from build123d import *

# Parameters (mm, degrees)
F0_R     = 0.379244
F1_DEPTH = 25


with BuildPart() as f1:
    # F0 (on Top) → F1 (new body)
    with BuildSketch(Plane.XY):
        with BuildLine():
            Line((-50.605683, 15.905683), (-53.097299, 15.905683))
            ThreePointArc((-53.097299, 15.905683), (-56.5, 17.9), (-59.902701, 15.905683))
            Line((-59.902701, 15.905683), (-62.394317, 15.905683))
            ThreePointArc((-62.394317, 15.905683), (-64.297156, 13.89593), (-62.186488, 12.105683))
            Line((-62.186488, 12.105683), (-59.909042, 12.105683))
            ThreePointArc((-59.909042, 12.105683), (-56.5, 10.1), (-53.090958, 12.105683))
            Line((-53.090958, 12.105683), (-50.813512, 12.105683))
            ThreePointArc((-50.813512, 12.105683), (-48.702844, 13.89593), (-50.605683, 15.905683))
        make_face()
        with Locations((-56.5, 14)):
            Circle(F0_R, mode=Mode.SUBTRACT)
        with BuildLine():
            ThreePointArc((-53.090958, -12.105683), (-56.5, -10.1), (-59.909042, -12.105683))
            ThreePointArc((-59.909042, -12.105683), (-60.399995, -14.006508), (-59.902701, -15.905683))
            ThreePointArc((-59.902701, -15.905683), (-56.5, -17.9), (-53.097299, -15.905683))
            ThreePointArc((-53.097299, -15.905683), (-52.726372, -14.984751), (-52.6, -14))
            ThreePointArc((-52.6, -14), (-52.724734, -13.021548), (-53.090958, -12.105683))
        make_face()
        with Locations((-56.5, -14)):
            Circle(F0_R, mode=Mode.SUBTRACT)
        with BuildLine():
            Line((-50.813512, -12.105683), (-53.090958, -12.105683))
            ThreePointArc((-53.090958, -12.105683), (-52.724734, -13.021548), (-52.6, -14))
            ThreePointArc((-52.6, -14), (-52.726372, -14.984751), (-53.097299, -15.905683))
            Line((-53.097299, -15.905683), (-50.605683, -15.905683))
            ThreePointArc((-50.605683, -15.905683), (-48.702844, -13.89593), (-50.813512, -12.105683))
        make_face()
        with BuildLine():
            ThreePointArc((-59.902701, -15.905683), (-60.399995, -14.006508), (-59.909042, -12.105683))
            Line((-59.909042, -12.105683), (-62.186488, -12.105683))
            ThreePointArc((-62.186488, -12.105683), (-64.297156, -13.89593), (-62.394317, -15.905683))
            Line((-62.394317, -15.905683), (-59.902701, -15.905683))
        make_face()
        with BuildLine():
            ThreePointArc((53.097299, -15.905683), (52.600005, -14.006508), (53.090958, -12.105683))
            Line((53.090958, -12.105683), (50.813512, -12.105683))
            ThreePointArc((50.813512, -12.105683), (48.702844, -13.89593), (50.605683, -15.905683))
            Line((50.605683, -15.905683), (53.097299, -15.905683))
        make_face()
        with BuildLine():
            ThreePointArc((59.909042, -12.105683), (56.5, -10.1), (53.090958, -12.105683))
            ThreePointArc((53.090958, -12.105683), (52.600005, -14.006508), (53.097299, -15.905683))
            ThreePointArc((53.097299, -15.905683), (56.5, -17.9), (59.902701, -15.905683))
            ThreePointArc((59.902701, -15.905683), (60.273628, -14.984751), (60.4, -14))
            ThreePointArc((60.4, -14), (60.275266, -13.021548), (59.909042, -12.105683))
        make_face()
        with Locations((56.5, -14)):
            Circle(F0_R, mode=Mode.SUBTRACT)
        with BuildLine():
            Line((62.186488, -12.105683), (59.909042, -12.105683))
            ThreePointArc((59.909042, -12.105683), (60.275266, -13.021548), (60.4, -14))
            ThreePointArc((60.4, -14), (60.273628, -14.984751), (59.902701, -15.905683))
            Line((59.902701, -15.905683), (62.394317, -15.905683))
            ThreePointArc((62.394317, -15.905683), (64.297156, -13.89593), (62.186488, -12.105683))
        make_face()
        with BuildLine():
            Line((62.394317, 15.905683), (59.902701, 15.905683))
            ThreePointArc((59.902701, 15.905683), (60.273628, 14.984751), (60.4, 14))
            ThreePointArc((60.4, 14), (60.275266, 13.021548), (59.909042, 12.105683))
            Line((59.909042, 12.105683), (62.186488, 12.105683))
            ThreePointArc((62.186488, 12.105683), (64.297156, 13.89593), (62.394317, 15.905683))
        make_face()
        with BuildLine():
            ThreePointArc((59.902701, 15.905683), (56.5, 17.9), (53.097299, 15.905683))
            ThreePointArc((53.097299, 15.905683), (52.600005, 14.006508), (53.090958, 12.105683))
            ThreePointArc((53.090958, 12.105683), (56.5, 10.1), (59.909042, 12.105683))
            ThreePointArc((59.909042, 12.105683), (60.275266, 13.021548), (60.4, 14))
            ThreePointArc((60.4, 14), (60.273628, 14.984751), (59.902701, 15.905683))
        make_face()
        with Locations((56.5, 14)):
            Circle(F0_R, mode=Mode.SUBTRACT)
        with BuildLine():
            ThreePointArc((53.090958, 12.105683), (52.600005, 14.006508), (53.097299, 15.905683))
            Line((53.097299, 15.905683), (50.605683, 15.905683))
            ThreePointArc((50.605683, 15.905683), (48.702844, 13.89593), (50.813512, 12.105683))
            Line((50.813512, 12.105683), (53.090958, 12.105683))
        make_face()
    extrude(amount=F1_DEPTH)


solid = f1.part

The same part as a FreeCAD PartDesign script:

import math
import FreeCAD as App
import Part
import Sketcher
from FreeCAD import Vector

doc = App.newDocument("Part")
params = doc.addObject("Spreadsheet::Sheet", "Params")
for row, (alias, value) in enumerate([
    ("sketch1_radius", "3.9 mm"),
    ("pad1_length", "25 mm"),
], start=1):
    params.set(f"A{row}", alias)
    params.set(f"B{row}", "=" + value)
    params.setAlias(f"B{row}", alias)

body = doc.addObject("PartDesign::Body", "Body")
body.AllowCompound = True

# Sketch on XY plane
sketch1 = doc.addObject("Sketcher::SketchObject", "Sketch")
body.addObject(sketch1)
sketch1.AttachmentSupport = (doc.XY_Plane, [""])
sketch1.MapMode = "FlatFace"
sketch1.addGeometry([
    Part.LineSegment(Vector(-50.61, 15.91, 0), Vector(-53.1, 15.91, 0)),  # 0
    Part.ArcOfCircle(Part.Circle(Vector(-56.5, 14, 0), Vector(0, 0, 1), 3.9), math.radians(29), math.radians(151)),  # 1
    Part.LineSegment(Vector(-59.9, 15.91, 0), Vector(-62.39, 15.91, 0)),  # 2
    Part.ArcOfCircle(Part.Circle(Vector(-62.39, 14, 0), Vector(0, 0, 1), 1.91), math.radians(90), math.radians(276)),  # 3
    Part.LineSegment(Vector(-62.19, 12.11, 0), Vector(-59.91, 12.11, 0)),  # 4
    Part.ArcOfCircle(Part.Circle(Vector(-56.5, 14, 0), Vector(0, 0, 1), 3.9), math.radians(-151), math.radians(-29)),  # 5
    Part.LineSegment(Vector(-53.09, 12.11, 0), Vector(-50.81, 12.11, 0)),  # 6
    Part.ArcOfCircle(Part.Circle(Vector(-50.61, 14, 0), Vector(0, 0, 1), 1.91), math.radians(-96), math.radians(90)),  # 7
    Part.Circle(Vector(-56.5, 14, 0), Vector(0, 0, 1), 0.38),  # 8
    Part.ArcOfCircle(Part.Circle(Vector(-56.5, -14, 0), Vector(0, 0, 1), 3.9), math.radians(29), math.radians(151)),  # 9
    Part.LineSegment(Vector(-59.91, -12.11, 0), Vector(-62.19, -12.11, 0)),  # 10
    Part.ArcOfCircle(Part.Circle(Vector(-62.39, -14, 0), Vector(0, 0, 1), 1.91), math.radians(84), math.radians(270)),  # 11
    Part.LineSegment(Vector(-62.39, -15.91, 0), Vector(-59.9, -15.91, 0)),  # 12
    Part.ArcOfCircle(Part.Circle(Vector(-56.5, -14, 0), Vector(0, 0, 1), 3.9), math.radians(-151), math.radians(-29)),  # 13
    Part.LineSegment(Vector(-53.1, -15.91, 0), Vector(-50.61, -15.91, 0)),  # 14
    Part.ArcOfCircle(Part.Circle(Vector(-50.61, -14, 0), Vector(0, 0, 1), 1.91), math.radians(-90), math.radians(96)),  # 15
    Part.LineSegment(Vector(-50.81, -12.11, 0), Vector(-53.09, -12.11, 0)),  # 16
    Part.Circle(Vector(-56.5, -14, 0), Vector(0, 0, 1), 0.38),  # 17
    Part.LineSegment(Vector(53.09, -12.11, 0), Vector(50.81, -12.11, 0)),  # 18
    Part.ArcOfCircle(Part.Circle(Vector(50.61, -14, 0), Vector(0, 0, 1), 1.91), math.radians(84), math.radians(270)),  # 19
    Part.LineSegment(Vector(50.61, -15.91, 0), Vector(53.1, -15.91, 0)),  # 20
    Part.ArcOfCircle(Part.Circle(Vector(56.5, -14, 0), Vector(0, 0, 1), 3.9), math.radians(-151), math.radians(-29)),  # 21
    Part.LineSegment(Vector(59.9, -15.91, 0), Vector(62.39, -15.91, 0)),  # 22
    Part.ArcOfCircle(Part.Circle(Vector(62.39, -14, 0), Vector(0, 0, 1), 1.91), math.radians(-90), math.radians(96)),  # 23
    Part.LineSegment(Vector(62.19, -12.11, 0), Vector(59.91, -12.11, 0)),  # 24
    Part.ArcOfCircle(Part.Circle(Vector(56.5, -14, 0), Vector(0, 0, 1), 3.9), math.radians(29), math.radians(151)),  # 25
    Part.Circle(Vector(56.5, -14, 0), Vector(0, 0, 1), 0.38),  # 26
    Part.LineSegment(Vector(62.39, 15.91, 0), Vector(59.9, 15.91, 0)),  # 27
    Part.ArcOfCircle(Part.Circle(Vector(56.5, 14, 0), Vector(0, 0, 1), 3.9), math.radians(29), math.radians(151)),  # 28
    Part.LineSegment(Vector(53.1, 15.91, 0), Vector(50.61, 15.91, 0)),  # 29
    Part.ArcOfCircle(Part.Circle(Vector(50.61, 14, 0), Vector(0, 0, 1), 1.91), math.radians(90), math.radians(276)),  # 30
    Part.LineSegment(Vector(50.81, 12.11, 0), Vector(53.09, 12.11, 0)),  # 31
    Part.ArcOfCircle(Part.Circle(Vector(56.5, 14, 0), Vector(0, 0, 1), 3.9), math.radians(-151), math.radians(-29)),  # 32
    Part.LineSegment(Vector(59.91, 12.11, 0), Vector(62.19, 12.11, 0)),  # 33
    Part.ArcOfCircle(Part.Circle(Vector(62.39, 14, 0), Vector(0, 0, 1), 1.91), math.radians(-96), math.radians(90)),  # 34
    Part.Circle(Vector(56.5, 14, 0), Vector(0, 0, 1), 0.38),  # 35
], False)
sketch1.addConstraint([
    Sketcher.Constraint("Coincident", 0, 2, 1, 1),
    Sketcher.Constraint("Coincident", 1, 2, 2, 1),
    Sketcher.Constraint("Tangent", 2, 2, 3, 1),
    Sketcher.Constraint("Coincident", 3, 2, 4, 1),
    Sketcher.Constraint("Coincident", 4, 2, 5, 1),
    Sketcher.Constraint("Coincident", 5, 2, 6, 1),
    Sketcher.Constraint("Coincident", 6, 2, 7, 1),
    Sketcher.Constraint("Tangent", 7, 2, 0, 1),
    Sketcher.Constraint("Coincident", 9, 2, 10, 1),
    Sketcher.Constraint("Coincident", 10, 2, 11, 1),
    Sketcher.Constraint("Tangent", 11, 2, 12, 1),
    Sketcher.Constraint("Coincident", 12, 2, 13, 1),
    Sketcher.Constraint("Coincident", 13, 2, 14, 1),
    Sketcher.Constraint("Tangent", 14, 2, 15, 1),
    Sketcher.Constraint("Coincident", 15, 2, 16, 1),
    Sketcher.Constraint("Coincident", 16, 2, 9, 1),
    Sketcher.Constraint("Coincident", 18, 2, 19, 1),
    Sketcher.Constraint("Tangent", 19, 2, 20, 1),
    Sketcher.Constraint("Coincident", 20, 2, 21, 1),
    Sketcher.Constraint("Coincident", 21, 2, 22, 1),
    Sketcher.Constraint("Tangent", 22, 2, 23, 1),
    Sketcher.Constraint("Coincident", 23, 2, 24, 1),
    Sketcher.Constraint("Coincident", 24, 2, 25, 1),
    Sketcher.Constraint("Coincident", 25, 2, 18, 1),
    Sketcher.Constraint("Coincident", 27, 2, 28, 1),
    Sketcher.Constraint("Coincident", 28, 2, 29, 1),
    Sketcher.Constraint("Tangent", 29, 2, 30, 1),
    Sketcher.Constraint("Coincident", 30, 2, 31, 1),
    Sketcher.Constraint("Coincident", 31, 2, 32, 1),
    Sketcher.Constraint("Coincident", 32, 2, 33, 1),
    Sketcher.Constraint("Coincident", 33, 2, 34, 1),
    Sketcher.Constraint("Tangent", 34, 2, 27, 1),
    Sketcher.Constraint("Horizontal", 0),
    Sketcher.Constraint("Horizontal", 2),
    Sketcher.Constraint("Horizontal", 4),
    Sketcher.Constraint("Horizontal", 6),
    Sketcher.Constraint("Horizontal", 10),
    Sketcher.Constraint("Horizontal", 12),
    Sketcher.Constraint("Horizontal", 14),
    Sketcher.Constraint("Horizontal", 16),
    Sketcher.Constraint("Horizontal", 18),
    Sketcher.Constraint("Horizontal", 20),
    Sketcher.Constraint("Horizontal", 22),
    Sketcher.Constraint("Horizontal", 24),
    Sketcher.Constraint("Horizontal", 27),
    Sketcher.Constraint("Horizontal", 29),
    Sketcher.Constraint("Horizontal", 31),
    Sketcher.Constraint("Horizontal", 33),
    Sketcher.Constraint("Coincident", 5, 3, 1, 3),
    Sketcher.Constraint("Coincident", 8, 3, 1, 3),
    Sketcher.Constraint("Coincident", 13, 3, 9, 3),
    Sketcher.Constraint("Coincident", 17, 3, 9, 3),
    Sketcher.Constraint("Coincident", 25, 3, 21, 3),
    Sketcher.Constraint("Coincident", 26, 3, 21, 3),
    Sketcher.Constraint("Coincident", 32, 3, 28, 3),
    Sketcher.Constraint("Coincident", 35, 3, 28, 3),
    Sketcher.Constraint("Equal", 1, 5),
    Sketcher.Constraint("Equal", 3, 7),
    Sketcher.Constraint("Equal", 5, 9),
    Sketcher.Constraint("Equal", 7, 11),
    Sketcher.Constraint("Equal", 9, 13),
    Sketcher.Constraint("Equal", 11, 15),
    Sketcher.Constraint("Equal", 8, 17),
    Sketcher.Constraint("Equal", 15, 19),
    Sketcher.Constraint("Equal", 13, 21),
    Sketcher.Constraint("Equal", 19, 23),
    Sketcher.Constraint("Equal", 21, 25),
    Sketcher.Constraint("Equal", 17, 26),
    Sketcher.Constraint("Equal", 25, 28),
    Sketcher.Constraint("Equal", 23, 30),
    Sketcher.Constraint("Equal", 28, 32),
    Sketcher.Constraint("Equal", 30, 34),
    Sketcher.Constraint("Equal", 26, 35),
    Sketcher.Constraint("Symmetric", 7, 3, 19, 3, -1, 1),
    Sketcher.Constraint("Symmetric", 1, 3, 21, 3, -1, 1),
    Sketcher.Constraint("Symmetric", 3, 3, 23, 3, -1, 1),
    Sketcher.Constraint("Symmetric", 9, 3, 28, 3, -1, 1),
    Sketcher.Constraint("Symmetric", 15, 3, 30, 3, -1, 1),
    Sketcher.Constraint("Symmetric", 11, 3, 34, 3, -1, 1),
    Sketcher.Constraint("Symmetric", 15, 3, 19, 3, -2),
    Sketcher.Constraint("Symmetric", 9, 3, 21, 3, -2),
    Sketcher.Constraint("Symmetric", 11, 3, 23, 3, -2),
    Sketcher.Constraint("Horizontal", 1, 3, 3, 3),
    Sketcher.Constraint("Horizontal", 5, 3, 7, 3),
    Sketcher.Constraint("Horizontal", 4, 2, 5, 2),
    Sketcher.Constraint("Horizontal", 10, 2, 15, 2),
    Sketcher.Constraint("Horizontal", 16, 2, 18, 2),
    Sketcher.Constraint("Horizontal", 18, 2, 23, 2),
    Sketcher.Constraint("Horizontal", 6, 2, 30, 2),
    Sketcher.Constraint("Horizontal", 31, 2, 32, 2),
    Sketcher.Constraint("Vertical", 4, 2, 9, 2),
    Sketcher.Constraint("Equal", 0, 2),
    Sketcher.Constraint("Radius", 1, 3.9),
    Sketcher.Constraint("DistanceY", -1, 1, 1, 3, 14.0),
    Sketcher.Constraint("DistanceX", 13, 3, 21, 3, 113.0),
    Sketcher.Constraint("DistanceY", 3, 2, 2, 2, 3.8),
    Sketcher.Constraint("Diameter", 8, 0.758488),
    Sketcher.Constraint("Radius", 3, 1.905683),
    Sketcher.Constraint("DistanceX", 0, 2, 0, 1, 2.491616),
])
sketch1.setExpression("Constraints[92]", "Params.sketch1_radius")
pad1 = doc.addObject("PartDesign::Pad", "Pad")
body.addObject(pad1)
pad1.Profile = sketch1
pad1.setExpression("Length", "Params.pad1_length")

doc.recompute()
